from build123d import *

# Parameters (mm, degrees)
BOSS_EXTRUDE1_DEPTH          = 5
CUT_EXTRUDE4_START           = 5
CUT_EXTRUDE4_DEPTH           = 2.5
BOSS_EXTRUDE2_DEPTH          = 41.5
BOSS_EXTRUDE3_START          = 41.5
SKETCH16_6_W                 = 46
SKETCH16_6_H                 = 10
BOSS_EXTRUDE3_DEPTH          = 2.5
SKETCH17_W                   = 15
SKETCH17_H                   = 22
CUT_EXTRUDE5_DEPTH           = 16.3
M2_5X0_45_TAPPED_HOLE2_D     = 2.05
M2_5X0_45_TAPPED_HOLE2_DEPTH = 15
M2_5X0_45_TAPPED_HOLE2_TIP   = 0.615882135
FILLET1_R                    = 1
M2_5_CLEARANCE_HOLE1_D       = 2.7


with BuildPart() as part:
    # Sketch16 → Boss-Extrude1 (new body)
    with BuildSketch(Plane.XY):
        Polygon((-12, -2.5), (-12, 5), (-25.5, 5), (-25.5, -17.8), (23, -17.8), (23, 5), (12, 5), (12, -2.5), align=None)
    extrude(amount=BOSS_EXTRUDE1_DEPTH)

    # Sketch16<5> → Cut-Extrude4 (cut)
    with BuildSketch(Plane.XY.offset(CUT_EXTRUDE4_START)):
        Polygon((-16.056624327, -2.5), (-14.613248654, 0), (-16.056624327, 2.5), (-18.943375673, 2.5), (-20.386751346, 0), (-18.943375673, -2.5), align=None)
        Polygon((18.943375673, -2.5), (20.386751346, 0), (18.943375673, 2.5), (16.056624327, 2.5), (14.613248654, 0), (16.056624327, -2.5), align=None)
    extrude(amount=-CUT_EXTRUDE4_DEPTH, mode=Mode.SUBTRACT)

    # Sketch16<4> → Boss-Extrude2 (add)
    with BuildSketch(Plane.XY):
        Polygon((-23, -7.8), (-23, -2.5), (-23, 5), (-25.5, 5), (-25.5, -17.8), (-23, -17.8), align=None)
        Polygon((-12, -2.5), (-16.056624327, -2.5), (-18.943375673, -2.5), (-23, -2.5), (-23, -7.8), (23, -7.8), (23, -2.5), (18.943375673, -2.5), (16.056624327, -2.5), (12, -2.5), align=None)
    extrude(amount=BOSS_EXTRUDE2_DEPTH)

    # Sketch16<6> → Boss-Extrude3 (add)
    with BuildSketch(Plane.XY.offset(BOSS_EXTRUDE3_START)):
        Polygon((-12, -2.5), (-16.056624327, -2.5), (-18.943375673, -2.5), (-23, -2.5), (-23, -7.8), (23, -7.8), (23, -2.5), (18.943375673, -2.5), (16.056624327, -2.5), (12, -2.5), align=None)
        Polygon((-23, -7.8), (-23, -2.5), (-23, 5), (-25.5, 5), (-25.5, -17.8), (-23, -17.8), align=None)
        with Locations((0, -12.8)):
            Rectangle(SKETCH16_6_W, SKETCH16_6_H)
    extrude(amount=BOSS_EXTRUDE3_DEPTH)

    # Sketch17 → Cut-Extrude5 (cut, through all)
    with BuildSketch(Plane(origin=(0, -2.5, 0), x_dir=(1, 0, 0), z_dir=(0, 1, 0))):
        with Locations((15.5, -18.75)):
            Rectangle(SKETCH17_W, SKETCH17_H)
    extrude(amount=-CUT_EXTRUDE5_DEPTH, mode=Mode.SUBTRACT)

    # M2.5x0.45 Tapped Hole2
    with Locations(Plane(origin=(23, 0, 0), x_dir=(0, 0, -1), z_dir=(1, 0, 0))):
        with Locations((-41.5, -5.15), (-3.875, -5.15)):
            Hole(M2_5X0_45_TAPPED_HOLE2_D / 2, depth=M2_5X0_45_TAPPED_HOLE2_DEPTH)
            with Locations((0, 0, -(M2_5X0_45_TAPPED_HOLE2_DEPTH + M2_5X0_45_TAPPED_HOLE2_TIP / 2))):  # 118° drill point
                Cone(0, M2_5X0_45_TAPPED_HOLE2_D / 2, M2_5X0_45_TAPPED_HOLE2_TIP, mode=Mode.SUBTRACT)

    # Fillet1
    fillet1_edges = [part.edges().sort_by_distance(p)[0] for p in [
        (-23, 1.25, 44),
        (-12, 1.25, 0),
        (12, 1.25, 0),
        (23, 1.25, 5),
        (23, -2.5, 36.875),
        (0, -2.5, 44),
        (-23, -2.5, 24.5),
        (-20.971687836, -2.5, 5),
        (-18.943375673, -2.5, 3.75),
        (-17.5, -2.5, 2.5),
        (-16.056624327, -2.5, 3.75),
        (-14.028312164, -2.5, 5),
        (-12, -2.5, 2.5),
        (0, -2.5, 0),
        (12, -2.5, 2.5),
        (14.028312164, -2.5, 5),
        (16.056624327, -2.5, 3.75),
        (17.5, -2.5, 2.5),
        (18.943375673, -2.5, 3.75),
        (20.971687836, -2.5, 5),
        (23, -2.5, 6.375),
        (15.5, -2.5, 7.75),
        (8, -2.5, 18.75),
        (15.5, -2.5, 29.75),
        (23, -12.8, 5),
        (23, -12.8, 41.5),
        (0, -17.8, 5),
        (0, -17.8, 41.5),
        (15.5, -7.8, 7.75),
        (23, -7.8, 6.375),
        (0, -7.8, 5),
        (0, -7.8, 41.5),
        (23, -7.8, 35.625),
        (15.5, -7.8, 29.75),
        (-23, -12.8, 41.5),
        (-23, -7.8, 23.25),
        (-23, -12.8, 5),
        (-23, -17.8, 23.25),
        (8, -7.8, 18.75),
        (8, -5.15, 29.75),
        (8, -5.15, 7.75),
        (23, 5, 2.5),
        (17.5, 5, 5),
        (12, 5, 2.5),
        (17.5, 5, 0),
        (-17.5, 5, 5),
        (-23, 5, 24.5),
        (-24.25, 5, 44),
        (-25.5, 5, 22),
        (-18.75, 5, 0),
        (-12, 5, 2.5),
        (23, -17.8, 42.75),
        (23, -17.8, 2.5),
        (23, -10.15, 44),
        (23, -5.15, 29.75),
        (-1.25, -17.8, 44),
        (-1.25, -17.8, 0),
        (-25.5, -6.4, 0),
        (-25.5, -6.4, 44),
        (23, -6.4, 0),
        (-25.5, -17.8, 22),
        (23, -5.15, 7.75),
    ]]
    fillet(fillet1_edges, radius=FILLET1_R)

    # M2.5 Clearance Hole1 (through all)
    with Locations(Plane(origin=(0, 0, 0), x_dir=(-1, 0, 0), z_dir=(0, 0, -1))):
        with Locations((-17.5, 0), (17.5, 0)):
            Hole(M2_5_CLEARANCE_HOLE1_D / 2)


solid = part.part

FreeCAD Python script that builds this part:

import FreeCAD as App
import Part
import Sketcher
from FreeCAD import Vector
Q = App.Units.Quantity


def edges_at(feature, points):
    """Names of the edges that pass closest to the given points."""
    edges = feature.Shape.Edges
    near = lambda p: min(range(len(edges)), key=lambda i: edges[i].distToShape(Part.Vertex(*p))[0])
    return sorted({f"Edge{near(p) + 1}" for p in points})

doc = App.newDocument("Part")
params = doc.addObject("Spreadsheet::Sheet", "Params")
for row, (alias, value) in enumerate([
    ("sketch1_width", "11 mm"),
    ("sketch1_width2", "24 mm"),
    ("sketch1_width3", "13.5 mm"),
    ("sketch1_height", "7.5 mm"),
    ("sketch1_height2", "22.8 mm"),
    ("pad1_length", "5 mm"),
    ("pocket1_length", "2.5 mm"),
    ("sketch3_width", "46 mm"),
    ("sketch3_height", "10 mm"),
    ("sketch3_width2", "2.5 mm"),
    ("sketch3_height2", "22.8 mm"),
    ("sketch3_height3", "5.3 mm"),
    ("pad2_length", "41.5 mm"),
    ("sketch4_width", "46 mm"),
    ("sketch4_width2", "2.5 mm"),
    ("sketch4_height", "7.5 mm"),
    ("sketch4_height2", "22.8 mm"),
    ("pad3_length", "2.5 mm"),
    ("sketch5_width", "15 mm"),
    ("sketch5_height", "22 mm"),
    ("sketch6_diameter", "2.05 mm"),
    ("hole_diameter", "2.05 mm"),
    ("hole_depth", "15 mm"),
    ("fillet_radius", "1 mm"),
    ("sketch7_diameter", "2.7 mm"),
    ("hole2_diameter", "2.7 mm"),
], start=1):
    params.set(f"A{row}", alias)
    params.set(f"B{row}", "=" + value)
    params.setAlias(f"B{row}", alias)

body = doc.addObject("PartDesign::Body", "Body")

sketch1 = doc.addObject("Sketcher::SketchObject", "Sketch")
body.addObject(sketch1)
sketch1.AttachmentSupport = (doc.XY_Plane, [""])
sketch1.MapMode = "FlatFace"
sketch1.addGeometry([
    Part.LineSegment(Vector(-12, -2, 0), Vector(-12, 5, 0)),
    Part.LineSegment(Vector(-12, 5, 0), Vector(-26, 5, 0)),
    Part.LineSegment(Vector(-26, 5, 0), Vector(-26, -18, 0)),
    Part.LineSegment(Vector(-26, -18, 0), Vector(23, -18, 0)),
    Part.LineSegment(Vector(23, -18, 0), Vector(23, 5, 0)),
    Part.LineSegment(Vector(23, 5, 0), Vector(12, 5, 0)),
    Part.LineSegment(Vector(12, 5, 0), Vector(12, -2, 0)),
    Part.LineSegment(Vector(12, -2, 0), Vector(-12, -2, 0)),
], False)
sketch1.addConstraint([
    Sketcher.Constraint("Coincident", 0, 2, 1, 1),
    Sketcher.Constraint("Coincident", 1, 2, 2, 1),
    Sketcher.Constraint("Coincident", 2, 2, 3, 1),
    Sketcher.Constraint("Coincident", 3, 2, 4, 1),
    Sketcher.Constraint("Coincident", 4, 2, 5, 1),
    Sketcher.Constraint("Coincident", 5, 2, 6, 1),
    Sketcher.Constraint("Coincident", 6, 2, 7, 1),
    Sketcher.Constraint("Coincident", 7, 2, 0, 1),
    Sketcher.Constraint("Vertical", 0),
    Sketcher.Constraint("Horizontal", 1),
    Sketcher.Constraint("Vertical", 2),
    Sketcher.Constraint("Horizontal", 3),
    Sketcher.Constraint("Vertical", 4),
    Sketcher.Constraint("Horizontal", 5),
    Sketcher.Constraint("Vertical", 6),
    Sketcher.Constraint("Horizontal", 7),
    Sketcher.Constraint("Symmetric", 0, 2, 5, 2, -2),
    Sketcher.Constraint("DistanceX", 5, 2, 5, 1, Q("11 mm")),
    Sketcher.Constraint("DistanceX", 7, 2, 7, 1, Q("24 mm")),
    Sketcher.Constraint("DistanceX", 1, 2, 1, 1, Q("13.5 mm")),
    Sketcher.Constraint("DistanceY", 0, 1, 0, 2, Q("7.5 mm")),
    Sketcher.Constraint("DistanceY", 2, 2, 2, 1, Q("22.8 mm")),
    Sketcher.Constraint("DistanceY", -1, 1, 0, 2, Q("5 mm")),
])
sketch1.setExpression("Constraints[17]", "Params.sketch1_width")
sketch1.setExpression("Constraints[18]", "Params.sketch1_width2")
sketch1.setExpression("Constraints[19]", "Params.sketch1_width3")
sketch1.setExpression("Constraints[20]", "Params.sketch1_height")
sketch1.setExpression("Constraints[21]", "Params.sketch1_height2")
pad1 = doc.addObject("PartDesign::Pad", "Pad")
body.addObject(pad1)
pad1.Profile = sketch1
pad1.setExpression("Length", "Params.pad1_length")

sketch2 = doc.addObject("Sketcher::SketchObject", "Sketch001")
body.addObject(sketch2)
sketch2.AttachmentSupport = (doc.XY_Plane, [""])
sketch2.MapMode = "FlatFace"
sketch2.AttachmentOffset = App.Placement(Vector(0, 0, 5), App.Rotation())
sketch2.addGeometry([
    Part.LineSegment(Vector(-16.1, -2.5, 0), Vector(-14.6, 0, 0)),
    Part.LineSegment(Vector(-14.6, 0, 0), Vector(-16.1, 2.5, 0)),
    Part.LineSegment(Vector(-16.1, 2.5, 0), Vector(-18.9, 2.5, 0)),
    Part.LineSegment(Vector(-18.9, 2.5, 0), Vector(-20.4, 0, 0)),
    Part.LineSegment(Vector(-20.4, 0, 0), Vector(-18.9, -2.5, 0)),
    Part.LineSegment(Vector(-18.9, -2.5, 0), Vector(-16.1, -2.5, 0)),
    Part.LineSegment(Vector(18.9, -2.5, 0), Vector(20.4, 0, 0)),
    Part.LineSegment(Vector(20.4, 0, 0), Vector(18.9, 2.5, 0)),
    Part.LineSegment(Vector(18.9, 2.5, 0), Vector(16.1, 2.5, 0)),
    Part.LineSegment(Vector(16.1, 2.5, 0), Vector(14.6, 0, 0)),
    Part.LineSegment(Vector(14.6, 0, 0), Vector(16.1, -2.5, 0)),
    Part.LineSegment(Vector(16.1, -2.5, 0), Vector(18.9, -2.5, 0)),
], False)
sketch2.addConstraint([
    Sketcher.Constraint("Coincident", 0, 2, 1, 1),
    Sketcher.Constraint("Coincident", 1, 2, 2, 1),
    Sketcher.Constraint("Coincident", 2, 2, 3, 1),
    Sketcher.Constraint("Coincident", 3, 2, 4, 1),
    Sketcher.Constraint("Coincident", 4, 2, 5, 1),
    Sketcher.Constraint("Coincident", 5, 2, 0, 1),
    Sketcher.Constraint("Coincident", 6, 2, 7, 1),
    Sketcher.Constraint("Coincident", 7, 2, 8, 1),
    Sketcher.Constraint("Coincident", 8, 2, 9, 1),
    Sketcher.Constraint("Coincident", 9, 2, 10, 1),
    Sketcher.Constraint("Coincident", 10, 2, 11, 1),
    Sketcher.Constraint("Coincident", 11, 2, 6, 1),
    Sketcher.Constraint("Horizontal", 2),
    Sketcher.Constraint("Horizontal", 5),
    Sketcher.Constraint("Horizontal", 8),
    Sketcher.Constraint("Horizontal", 11),
    Sketcher.Constraint("Symmetric", 3, 2, 6, 2, -1, 1),
    Sketcher.Constraint("Symmetric", 4, 2, 7, 2, -1, 1),
    Sketcher.Constraint("Symmetric", 0, 2, 9, 2, -1, 1),
    Sketcher.Constraint("Symmetric", 1, 2, 10, 2, -1, 1),
    Sketcher.Constraint("Symmetric", 2, 2, 7, 2, -2),
    Sketcher.Constraint("PointOnObject", 0, 2, -1),
    Sketcher.Constraint("PointOnObject", 3, 2, -1),
    Sketcher.Constraint("Parallel", 0, 3),
    Sketcher.Constraint("Parallel", 1, 4),
    Sketcher.Constraint("Parallel", 3, 6),
    Sketcher.Constraint("Parallel", 6, 9),
    Sketcher.Constraint("Angle", 0, Q("60 deg")),
    Sketcher.Constraint("DistanceY", 4, 2, 2, 2, Q("5 mm")),
    Sketcher.Constraint("DistanceX", 0, 2, 6, 2, Q("35 mm")),
    Sketcher.Constraint("DistanceX", 2, 2, 2, 1, Q("2.886751 mm")),
])
pocket1 = doc.addObject("PartDesign::Pocket", "Pocket")
body.addObject(pocket1)
pocket1.Profile = sketch2
pocket1.setExpression("Length", "Params.pocket1_length")

sketch3 = doc.addObject("Sketcher::SketchObject", "Sketch002")
body.addObject(sketch3)
sketch3.AttachmentSupport = (doc.XY_Plane, [""])
sketch3.MapMode = "FlatFace"
sketch3.addGeometry([
    Part.LineSegment(Vector(-23, 5, 0), Vector(-25.5, 5, 0)),
    Part.LineSegment(Vector(-25.5, 5, 0), Vector(-25.5, -17.8, 0)),
    Part.LineSegment(Vector(-25.5, -17.8, 0), Vector(-23, -17.8, 0)),
    Part.LineSegment(Vector(-23, -17.8, 0), Vector(-23, -7.8, 0)),
    Part.LineSegment(Vector(-23, -7.8, 0), Vector(23, -7.8, 0)),
    Part.LineSegment(Vector(23, -7.8, 0), Vector(23, -2.5, 0)),
    Part.LineSegment(Vector(23, -2.5, 0), Vector(-23, -2.5, 0)),
    Part.LineSegment(Vector(-23, -2.5, 0), Vector(-23, 5, 0)),
], False)
sketch3.addConstraint([
    Sketcher.Constraint("Coincident", 0, 2, 1, 1),
    Sketcher.Constraint("Coincident", 1, 2, 2, 1),
    Sketcher.Constraint("Coincident", 2, 2, 3, 1),
    Sketcher.Constraint("Coincident", 3, 2, 4, 1),
    Sketcher.Constraint("Coincident", 4, 2, 5, 1),
    Sketcher.Constraint("Coincident", 5, 2, 6, 1),
    Sketcher.Constraint("Coincident", 6, 2, 7, 1),
    Sketcher.Constraint("Coincident", 7, 2, 0, 1),
    Sketcher.Constraint("Horizontal", 0),
    Sketcher.Constraint("Vertical", 1),
    Sketcher.Constraint("Horizontal", 2),
    Sketcher.Constraint("Vertical", 3),
    Sketcher.Constraint("Horizontal", 4),
    Sketcher.Constraint("Vertical", 5),
    Sketcher.Constraint("Horizontal", 6),
    Sketcher.Constraint("Vertical", 7),
    Sketcher.Constraint("Vertical", 3, 2, 6, 2),
    Sketcher.Constraint("DistanceX", 4, 1, 4, 2, Q("46 mm")),
    Sketcher.Constraint("DistanceY", 3, 1, 3, 2, Q("10 mm")),
    Sketcher.Constraint("DistanceX", 0, 2, 0, 1, Q("2.5 mm")),
    Sketcher.Constraint("DistanceY", 1, 2, 1, 1, Q("22.8 mm")),
    Sketcher.Constraint("DistanceY", 5, 1, 5, 2, Q("5.3 mm")),
    Sketcher.Constraint("DistanceY", -1, 1, 0, 2, Q("5 mm")),
    Sketcher.Constraint("DistanceX", 2, 2, -1, 1, Q("23 mm")),
])
sketch3.setExpression("Constraints[17]", "Params.sketch3_width")
sketch3.setExpression("Constraints[18]", "Params.sketch3_height")
sketch3.setExpression("Constraints[19]", "Params.sketch3_width2")
sketch3.setExpression("Constraints[20]", "Params.sketch3_height2")
sketch3.setExpression("Constraints[21]", "Params.sketch3_height3")
pad2 = doc.addObject("PartDesign::Pad", "Pad001")
body.addObject(pad2)
pad2.Profile = sketch3
pad2.setExpression("Length", "Params.pad2_length")

sketch4 = doc.addObject("Sketcher::SketchObject", "Sketch003")
body.addObject(sketch4)
sketch4.AttachmentSupport = (doc.XY_Plane, [""])
sketch4.MapMode = "FlatFace"
sketch4.AttachmentOffset = App.Placement(Vector(0, 0, 41.5), App.Rotation())
sketch4.addGeometry([
    Part.LineSegment(Vector(23, -2.5, 0), Vector(-23, -2.5, 0)),
    Part.LineSegment(Vector(-23, -2.5, 0), Vector(-23, 5, 0)),
    Part.LineSegment(Vector(-23, 5, 0), Vector(-25.5, 5, 0)),
    Part.LineSegment(Vector(-25.5, 5, 0), Vector(-25.5, -17.8, 0)),
    Part.LineSegment(Vector(-25.5, -17.8, 0), Vector(23, -17.8, 0)),
    Part.LineSegment(Vector(23, -17.8, 0), Vector(23, -2.5, 0)),
], False)
sketch4.addConstraint([
    Sketcher.Constraint("Coincident", 0, 2, 1, 1),
    Sketcher.Constraint("Coincident", 1, 2, 2, 1),
    Sketcher.Constraint("Coincident", 2, 2, 3, 1),
    Sketcher.Constraint("Coincident", 3, 2, 4, 1),
    Sketcher.Constraint("Coincident", 4, 2, 5, 1),
    Sketcher.Constraint("Coincident", 5, 2, 0, 1),
    Sketcher.Constraint("Horizontal", 0),
    Sketcher.Constraint("Vertical", 1),
    Sketcher.Constraint("Horizontal", 2),
    Sketcher.Constraint("Vertical", 3),
    Sketcher.Constraint("Horizontal", 4),
    Sketcher.Constraint("Vertical", 5),
    Sketcher.Constraint("DistanceX", 0, 2, 0, 1, Q("46 mm")),
    Sketcher.Constraint("DistanceX", 2, 2, 2, 1, Q("2.5 mm")),
    Sketcher.Constraint("DistanceY", 1, 1, 1, 2, Q("7.5 mm")),
    Sketcher.Constraint("DistanceY", 3, 2, 3, 1, Q("22.8 mm")),
    Sketcher.Constraint("DistanceX", 0, 2, -1, 1, Q("23 mm")),
    Sketcher.Constraint("DistanceY", -1, 1, 1, 2, Q("5 mm")),
])
sketch4.setExpression("Constraints[12]", "Params.sketch4_width")
sketch4.setExpression("Constraints[13]", "Params.sketch4_width2")
sketch4.setExpression("Constraints[14]", "Params.sketch4_height")
sketch4.setExpression("Constraints[15]", "Params.sketch4_height2")
pad3 = doc.addObject("PartDesign::Pad", "Pad002")
body.addObject(pad3)
pad3.Profile = sketch4
pad3.setExpression("Length", "Params.pad3_length")

sketch5 = doc.addObject("Sketcher::SketchObject", "Sketch004")
body.addObject(sketch5)
sketch5.AttachmentSupport = (doc.XZ_Plane, [""])
sketch5.MapMode = "FlatFace"
sketch5.AttachmentOffset = App.Placement(Vector(0, 0, 2.5), App.Rotation())
sketch5.addGeometry([
    Part.LineSegment(Vector(8, 8, 0), Vector(8, 30, 0)),
    Part.LineSegment(Vector(8, 30, 0), Vector(23, 30, 0)),
    Part.LineSegment(Vector(23, 30, 0), Vector(23, 8, 0)),
    Part.LineSegment(Vector(23, 8, 0), Vector(8, 8, 0)),
], False)
sketch5.addConstraint([
    Sketcher.Constraint("Coincident", 0, 2, 1, 1),
    Sketcher.Constraint("Coincident", 1, 2, 2, 1),
    Sketcher.Constraint("Coincident", 2, 2, 3, 1),
    Sketcher.Constraint("Coincident", 3, 2, 0, 1),
    Sketcher.Constraint("Vertical", 0),
    Sketcher.Constraint("Horizontal", 1),
    Sketcher.Constraint("Vertical", 2),
    Sketcher.Constraint("Horizontal", 3),
    Sketcher.Constraint("DistanceX", 1, 1, 1, 2, Q("15 mm")),
    Sketcher.Constraint("DistanceY", 0, 1, 0, 2, Q("22 mm")),
    Sketcher.Constraint("DistanceX", -1, 1, 0, 2, Q("8 mm")),
    Sketcher.Constraint("DistanceY", -1, 1, 0, 2, Q("29.75 mm")),
])
sketch5.setExpression("Constraints[8]", "Params.sketch5_width")
sketch5.setExpression("Constraints[9]", "Params.sketch5_height")
pocket2 = doc.addObject("PartDesign::Pocket", "Pocket001")
body.addObject(pocket2)
pocket2.Profile = sketch5
pocket2.Type = "ThroughAll"
pocket2.Reversed = True

sketch6 = doc.addObject("Sketcher::SketchObject", "Sketch005")
body.addObject(sketch6)
sketch6.AttachmentSupport = (doc.YZ_Plane, [""])
sketch6.MapMode = "FlatFace"
sketch6.AttachmentOffset = App.Placement(Vector(0, 0, 23), App.Rotation())
sketch6.addGeometry([
    Part.Circle(Vector(-5.2, 41.5, 0), Vector(0, 0, 1), 1),
    Part.Circle(Vector(-5.2, 3.9, 0), Vector(0, 0, 1), 1),
], False)
sketch6.addConstraint([
    Sketcher.Constraint("Equal", 0, 1),
    Sketcher.Constraint("Vertical", 0, 3, 1, 3),
    Sketcher.Constraint("Diameter", 0, Q("2.05 mm")),
    Sketcher.Constraint("DistanceY", -1, 1, 0, 3, Q("41.5 mm")),
    Sketcher.Constraint("DistanceX", 0, 3, -1, 1, Q("5.15 mm")),
    Sketcher.Constraint("DistanceY", -1, 1, 1, 3, Q("3.875 mm")),
])
sketch6.setExpression("Constraints[2]", "Params.sketch6_diameter")
doc.recompute()
hole = doc.addObject("PartDesign::Hole", "Hole")
body.addObject(hole)
hole.Profile = sketch6
hole.ThreadType = "None"
hole.setExpression("Diameter", "Params.hole_diameter")
hole.DepthType = "Dimension"
hole.setExpression("Depth", "Params.hole_depth")
hole.DrillPoint = "Angled"
hole.DrillPointAngle = 118
doc.recompute()

fillet = doc.addObject("PartDesign::Fillet", "Fillet")
body.addObject(fillet)
fillet.Base = (hole, edges_at(hole, [
    (-23, 1.25, 44),
    (-12, 1.25, 0),
    (12, 1.25, 0),
    (23, 1.25, 5),
    (23, -2.5, 36.875),
    (0, -2.5, 44),
    (-23, -2.5, 24.5),
    (-20.972, -2.5, 5),
    (-18.943, -2.5, 3.75),
    (-17.5, -2.5, 2.5),
    (-16.057, -2.5, 3.75),
    (-14.028, -2.5, 5),
    (-12, -2.5, 2.5),
    (0, -2.5, 0),
    (12, -2.5, 2.5),
    (14.028, -2.5, 5),
    (16.057, -2.5, 3.75),
    (17.5, -2.5, 2.5),
    (18.943, -2.5, 3.75),
    (20.972, -2.5, 5),
    (23, -2.5, 6.375),
    (15.5, -2.5, 7.75),
    (8, -2.5, 18.75),
    (15.5, -2.5, 29.75),
    (23, -12.8, 5),
    (23, -12.8, 41.5),
    (0, -17.8, 5),
    (0, -17.8, 41.5),
    (15.5, -7.8, 7.75),
    (23, -7.8, 6.375),
    (0, -7.8, 5),
    (0, -7.8, 41.5),
    (23, -7.8, 35.625),
    (15.5, -7.8, 29.75),
    (-23, -12.8, 41.5),
    (-23, -7.8, 23.25),
    (-23, -12.8, 5),
    (-23, -17.8, 23.25),
    (8, -7.8, 18.75),
    (8, -5.15, 29.75),
    (8, -5.15, 7.75),
    (23, 5, 2.5),
    (17.5, 5, 5),
    (12, 5, 2.5),
    (17.5, 5, 0),
    (-17.5, 5, 5),
    (-23, 5, 24.5),
    (-24.25, 5, 44),
    (-25.5, 5, 22),
    (-18.75, 5, 0),
    (-12, 5, 2.5),
    (23, -17.8, 42.75),
    (23, -17.8, 2.5),
    (23, -10.15, 44),
    (23, -5.15, 29.75),
    (-1.25, -17.8, 44),
    (-1.25, -17.8, 0),
    (-25.5, -6.4, 0),
    (-25.5, -6.4, 44),
    (23, -6.4, 0),
    (-25.5, -17.8, 22),
    (23, -5.15, 7.75),
]))
fillet.setExpression("Radius", "Params.fillet_radius")

sketch7 = doc.addObject("Sketcher::SketchObject", "Sketch006")
body.addObject(sketch7)
sketch7.AttachmentSupport = (doc.XY_Plane, [""])
sketch7.MapMode = "FlatFace"
sketch7.addGeometry([
    Part.Circle(Vector(17.5, 0, 0), Vector(0, 0, 1), 1.4),
    Part.Circle(Vector(-17.5, 0, 0), Vector(0, 0, 1), 1.4),
], False)
sketch7.addConstraint([
    Sketcher.Constraint("Equal", 0, 1),
    Sketcher.Constraint("Symmetric", 0, 3, 1, 3, -1, 1),
    Sketcher.Constraint("PointOnObject", 0, 3, -1),
    Sketcher.Constraint("Diameter", 0, Q("2.7 mm")),
    Sketcher.Constraint("DistanceX", 1, 3, 0, 3, Q("35 mm")),
])
sketch7.setExpression("Constraints[3]", "Params.sketch7_diameter")
doc.recompute()
hole2 = doc.addObject("PartDesign::Hole", "Hole001")
body.addObject(hole2)
hole2.Profile = sketch7
hole2.ThreadType = "None"
hole2.setExpression("Diameter", "Params.hole2_diameter")
hole2.DepthType = "ThroughAll"
hole2.Reversed = True

doc.recompute()
